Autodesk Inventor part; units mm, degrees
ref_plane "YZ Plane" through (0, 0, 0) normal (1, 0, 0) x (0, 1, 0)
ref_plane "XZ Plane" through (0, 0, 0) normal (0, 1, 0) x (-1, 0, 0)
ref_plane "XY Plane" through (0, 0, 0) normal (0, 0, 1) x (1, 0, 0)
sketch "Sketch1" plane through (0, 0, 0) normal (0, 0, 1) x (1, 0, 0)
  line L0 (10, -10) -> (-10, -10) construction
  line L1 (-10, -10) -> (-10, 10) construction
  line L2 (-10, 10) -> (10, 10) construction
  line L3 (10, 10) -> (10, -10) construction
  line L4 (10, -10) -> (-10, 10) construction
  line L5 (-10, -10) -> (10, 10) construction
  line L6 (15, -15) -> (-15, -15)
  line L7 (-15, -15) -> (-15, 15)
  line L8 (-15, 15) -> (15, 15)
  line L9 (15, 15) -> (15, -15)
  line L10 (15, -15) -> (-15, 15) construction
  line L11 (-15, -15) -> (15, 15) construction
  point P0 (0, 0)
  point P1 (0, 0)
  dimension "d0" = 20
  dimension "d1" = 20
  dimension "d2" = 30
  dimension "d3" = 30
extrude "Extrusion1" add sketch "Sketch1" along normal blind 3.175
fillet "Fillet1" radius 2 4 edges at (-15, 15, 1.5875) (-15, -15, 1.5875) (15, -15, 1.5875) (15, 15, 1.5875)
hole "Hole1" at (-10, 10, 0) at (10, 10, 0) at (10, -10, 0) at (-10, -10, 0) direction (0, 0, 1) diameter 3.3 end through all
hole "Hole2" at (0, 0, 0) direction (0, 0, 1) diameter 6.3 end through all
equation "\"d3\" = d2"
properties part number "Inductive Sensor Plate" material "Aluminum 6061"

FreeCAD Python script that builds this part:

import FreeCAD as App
import Part
import Sketcher


def edges_at(feature, points):
    """Names of the edges that pass closest to the given points."""
    edges = feature.Shape.Edges
    near = lambda p: min(range(len(edges)), key=lambda i: edges[i].distToShape(Part.Vertex(*p))[0])
    return sorted({f"Edge{near(p) + 1}" for p in points})

doc = App.newDocument("Part")
body = doc.addObject("PartDesign::Body", "Body")

# Sketch on XY plane
sketch1 = doc.addObject("Sketcher::SketchObject", "Sketch")
body.addObject(sketch1)
sketch1.AttachmentSupport = (doc.XY_Plane, [""])
sketch1.MapMode = "FlatFace"
sketch1.addGeometry([
    Part.LineSegment(App.Vector(-15, -15, 0), App.Vector(15, -15, 0)),
    Part.LineSegment(App.Vector(15, -15, 0), App.Vector(15, 15, 0)),
    Part.LineSegment(App.Vector(15, 15, 0), App.Vector(-15, 15, 0)),
    Part.LineSegment(App.Vector(-15, 15, 0), App.Vector(-15, -15, 0)),
], False)
sketch1.addConstraint([
    Sketcher.Constraint("Coincident", 0, 2, 1, 1),
    Sketcher.Constraint("Coincident", 1, 2, 2, 1),
    Sketcher.Constraint("Coincident", 2, 2, 3, 1),
    Sketcher.Constraint("Coincident", 3, 2, 0, 1),
    Sketcher.Constraint("Horizontal", 0),
    Sketcher.Constraint("Vertical", 1),
    Sketcher.Constraint("Horizontal", 2),
    Sketcher.Constraint("Vertical", 3),
    Sketcher.Constraint("Symmetric", 0, 2, 2, 2, -1, 1),
    Sketcher.Constraint("Equal", 2, 1),
    Sketcher.Constraint("DistanceX", 0, 1, 0, 2, 30.0),
])
pad1 = doc.addObject("PartDesign::Pad", "Pad")
body.addObject(pad1)
pad1.Profile = sketch1
pad1.Length = 3.175
doc.recompute()

fillet = doc.addObject("PartDesign::Fillet", "Fillet")
body.addObject(fillet)
fillet.Base = (pad1, edges_at(pad1, [
    (-15, 15, 1.587),
    (-15, -15, 1.587),
    (15, -15, 1.587),
    (15, 15, 1.587),
]))
fillet.Radius = 2

# Sketch on XY plane
sketch2 = doc.addObject("Sketcher::SketchObject", "Sketch001")
body.addObject(sketch2)
sketch2.AttachmentSupport = (doc.XY_Plane, [""])
sketch2.MapMode = "FlatFace"
sketch2.addGeometry([
    Part.Circle(App.Vector(-10, 10, 0), App.Vector(0, 0, 1), 1.6),
    Part.Circle(App.Vector(10, 10, 0), App.Vector(0, 0, 1), 1.6),
    Part.Circle(App.Vector(10, -10, 0), App.Vector(0, 0, 1), 1.6),
    Part.Circle(App.Vector(-10, -10, 0), App.Vector(0, 0, 1), 1.6),
], False)
sketch2.addConstraint([
    Sketcher.Constraint("Equal", 0, 1),
    Sketcher.Constraint("Equal", 1, 2),
    Sketcher.Constraint("Equal", 2, 3),
    Sketcher.Constraint("Symmetric", 0, 3, 2, 3, -1, 1),
    Sketcher.Constraint("Symmetric", 1, 3, 3, 3, -1, 1),
    Sketcher.Constraint("Symmetric", 0, 3, 1, 3, -2),
    Sketcher.Constraint("Diameter", 0, 3.3),
    Sketcher.Constraint("DistanceX", 0, 3, -1, 1, 10.0),
    Sketcher.Constraint("DistanceY", -1, 1, 0, 3, 10.0),
])
doc.recompute()
hole = doc.addObject("PartDesign::Hole", "Hole")
body.addObject(hole)
hole.Profile = sketch2
hole.ThreadType = "None"
hole.Diameter = 3.3
hole.DepthType = "ThroughAll"
hole.Reversed = True

# Sketch on XY plane
sketch3 = doc.addObject("Sketcher::SketchObject", "Sketch002")
body.addObject(sketch3)
sketch3.AttachmentSupport = (doc.XY_Plane, [""])
sketch3.MapMode = "FlatFace"
sketch3.addGeometry(Part.Circle(App.Vector(0, 0, 0), App.Vector(0, 0, 1), 3.1), False)
sketch3.addConstraint([
    Sketcher.Constraint("Coincident", 0, 3, -1, 1),
    Sketcher.Constraint("Diameter", 0, 6.3),
])
doc.recompute()
hole2 = doc.addObject("PartDesign::Hole", "Hole001")
body.addObject(hole2)
hole2.Profile = sketch3
hole2.ThreadType = "None"
hole2.Diameter = 6.3
hole2.DepthType = "ThroughAll"
hole2.Reversed = True

doc.recompute()
